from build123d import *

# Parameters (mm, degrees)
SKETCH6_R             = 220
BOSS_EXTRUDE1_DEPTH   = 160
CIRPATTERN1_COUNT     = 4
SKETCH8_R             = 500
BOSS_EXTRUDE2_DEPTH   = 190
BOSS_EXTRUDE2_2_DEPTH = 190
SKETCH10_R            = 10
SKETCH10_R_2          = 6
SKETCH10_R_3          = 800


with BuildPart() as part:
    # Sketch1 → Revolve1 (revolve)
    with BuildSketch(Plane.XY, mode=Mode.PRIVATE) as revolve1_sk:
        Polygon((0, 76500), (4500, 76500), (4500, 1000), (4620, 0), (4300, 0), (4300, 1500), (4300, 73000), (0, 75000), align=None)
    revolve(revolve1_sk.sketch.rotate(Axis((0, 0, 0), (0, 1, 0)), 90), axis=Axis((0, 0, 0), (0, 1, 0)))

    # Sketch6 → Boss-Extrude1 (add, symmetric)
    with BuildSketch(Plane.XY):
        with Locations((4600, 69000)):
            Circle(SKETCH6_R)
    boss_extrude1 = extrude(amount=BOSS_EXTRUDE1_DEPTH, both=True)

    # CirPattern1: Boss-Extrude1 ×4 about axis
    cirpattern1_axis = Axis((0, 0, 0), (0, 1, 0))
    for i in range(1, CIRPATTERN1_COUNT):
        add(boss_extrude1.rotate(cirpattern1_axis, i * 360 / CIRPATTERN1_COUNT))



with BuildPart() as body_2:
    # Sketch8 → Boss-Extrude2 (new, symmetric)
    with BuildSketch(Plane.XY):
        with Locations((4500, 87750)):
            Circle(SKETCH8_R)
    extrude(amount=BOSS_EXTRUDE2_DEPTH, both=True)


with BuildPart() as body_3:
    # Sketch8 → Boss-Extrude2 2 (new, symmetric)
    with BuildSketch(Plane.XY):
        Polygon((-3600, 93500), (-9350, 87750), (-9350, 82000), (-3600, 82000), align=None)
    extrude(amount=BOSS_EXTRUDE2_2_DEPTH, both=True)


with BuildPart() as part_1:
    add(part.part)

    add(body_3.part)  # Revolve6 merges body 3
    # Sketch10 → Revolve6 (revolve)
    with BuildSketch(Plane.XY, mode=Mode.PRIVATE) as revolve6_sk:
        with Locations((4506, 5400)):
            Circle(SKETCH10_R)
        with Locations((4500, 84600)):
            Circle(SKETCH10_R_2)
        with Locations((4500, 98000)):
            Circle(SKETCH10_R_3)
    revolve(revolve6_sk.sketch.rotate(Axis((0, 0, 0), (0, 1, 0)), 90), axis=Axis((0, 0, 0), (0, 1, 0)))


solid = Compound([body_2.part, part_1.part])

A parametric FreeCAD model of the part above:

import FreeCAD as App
import Part
import Sketcher

doc = App.newDocument("Part")
body = doc.addObject("PartDesign::Body", "Body")

# Sketch on XY plane
sketch1 = doc.addObject("Sketcher::SketchObject", "Sketch")
body.addObject(sketch1)
sketch1.AttachmentSupport = (doc.XY_Plane, [""])
sketch1.MapMode = "FlatFace"
sketch1.addGeometry([
    Part.LineSegment(App.Vector(4500, 76500, 0), App.Vector(0, 76500, 0)),  # 0
    Part.LineSegment(App.Vector(0, 76500, 0), App.Vector(0, 75000, 0)),  # 1
    Part.LineSegment(App.Vector(0, 75000, 0), App.Vector(4300, 73000, 0)),  # 2
    Part.LineSegment(App.Vector(4300, 73000, 0), App.Vector(4300, 0, 0)),  # 3
    Part.LineSegment(App.Vector(4300, 0, 0), App.Vector(4620, 0, 0)),  # 4
    Part.LineSegment(App.Vector(4620, 0, 0), App.Vector(4500, 1000, 0)),  # 5
    Part.LineSegment(App.Vector(4500, 1000, 0), App.Vector(4500, 76500, 0)),  # 6
], False)
sketch1.addConstraint([
    Sketcher.Constraint("Coincident", 0, 2, 1, 1),
    Sketcher.Constraint("Coincident", 1, 2, 2, 1),
    Sketcher.Constraint("Coincident", 2, 2, 3, 1),
    Sketcher.Constraint("Coincident", 3, 2, 4, 1),
    Sketcher.Constraint("Coincident", 4, 2, 5, 1),
    Sketcher.Constraint("Coincident", 5, 2, 6, 1),
    Sketcher.Constraint("Coincident", 6, 2, 0, 1),
    Sketcher.Constraint("Horizontal", 0),
    Sketcher.Constraint("Vertical", 1),
    Sketcher.Constraint("Vertical", 3),
    Sketcher.Constraint("Horizontal", 4),
    Sketcher.Constraint("Vertical", 6),
    Sketcher.Constraint("PointOnObject", 0, 2, -2),
    Sketcher.Constraint("PointOnObject", 3, 2, -1),
    Sketcher.Constraint("DistanceX", 0, 2, 0, 1, 4500.0),
    Sketcher.Constraint("DistanceX", 4, 1, 4, 2, 320.0),
    Sketcher.Constraint("DistanceY", 1, 2, 1, 1, 1500.0),
    Sketcher.Constraint("DistanceY", 3, 2, 3, 1, 73000.0),
    Sketcher.Constraint("DistanceY", 6, 1, 6, 2, 75500.0),
    Sketcher.Constraint("DistanceY", -1, 1, 0, 2, 76500.0),
    Sketcher.Constraint("DistanceX", -1, 1, 2, 2, 4300.0),
])
revolution = doc.addObject("PartDesign::Revolution", "Revolution")
body.addObject(revolution)
revolution.Profile = sketch1
revolution.ReferenceAxis = (sketch1, ["V_Axis"])
revolution.Angle = 360

# Sketch on XY plane
sketch2 = doc.addObject("Sketcher::SketchObject", "Sketch001")
body.addObject(sketch2)
sketch2.AttachmentSupport = (doc.XY_Plane, [""])
sketch2.MapMode = "FlatFace"
sketch2.addGeometry(Part.Circle(App.Vector(4600, 69000, 0), App.Vector(0, 0, 1), 220), False)
sketch2.addConstraint([
    Sketcher.Constraint("Diameter", 0, 440.0),
    Sketcher.Constraint("DistanceX", -1, 1, 0, 3, 4600.0),
    Sketcher.Constraint("DistanceY", -1, 1, 0, 3, 69000.0),
])
pad1 = doc.addObject("PartDesign::Pad", "Pad")
body.addObject(pad1)
pad1.Profile = sketch2
pad1.Length = 320
pad1.Midplane = True
doc.recompute()

polarpattern = doc.addObject("PartDesign::PolarPattern", "PolarPattern")
body.addObject(polarpattern)
polarpattern.Originals = [pad1]
polarpattern.Axis = (doc.Y_Axis, [""])
polarpattern.Angle = 360
polarpattern.Occurrences = 4
body.Tip = polarpattern
body2 = doc.addObject("PartDesign::Body", "Body001")

# Sketch on XY plane
sketch3 = doc.addObject("Sketcher::SketchObject", "Sketch002")
body2.addObject(sketch3)
sketch3.AttachmentSupport = (doc.getObject("XY_Plane001"), [""])
sketch3.MapMode = "FlatFace"
sketch3.addGeometry(Part.Circle(App.Vector(4500, 87750, 0), App.Vector(0, 0, 1), 500), False)
sketch3.addConstraint([
    Sketcher.Constraint("Diameter", 0, 1000.0),
    Sketcher.Constraint("DistanceX", -1, 1, 0, 3, 4500.0),
    Sketcher.Constraint("DistanceY", -1, 1, 0, 3, 87750.0),
])
pad2 = doc.addObject("PartDesign::Pad", "Pad001")
body2.addObject(pad2)
pad2.Profile = sketch3
pad2.Length = 380
pad2.Midplane = True
body3 = doc.addObject("PartDesign::Body", "Body002")

# Sketch on XY plane
sketch4 = doc.addObject("Sketcher::SketchObject", "Sketch003")
body3.addObject(sketch4)
sketch4.AttachmentSupport = (doc.getObject("XY_Plane002"), [""])
sketch4.MapMode = "FlatFace"
sketch4.addGeometry([
    Part.LineSegment(App.Vector(-3600, 93500, 0), App.Vector(-9350, 87750, 0)),
    Part.LineSegment(App.Vector(-9350, 87750, 0), App.Vector(-9350, 82000, 0)),
    Part.LineSegment(App.Vector(-9350, 82000, 0), App.Vector(-3600, 82000, 0)),
    Part.LineSegment(App.Vector(-3600, 82000, 0), App.Vector(-3600, 93500, 0)),
], False)
sketch4.addConstraint([
    Sketcher.Constraint("Coincident", 0, 2, 1, 1),
    Sketcher.Constraint("Coincident", 1, 2, 2, 1),
    Sketcher.Constraint("Coincident", 2, 2, 3, 1),
    Sketcher.Constraint("Coincident", 3, 2, 0, 1),
    Sketcher.Constraint("Vertical", 1),
    Sketcher.Constraint("Horizontal", 2),
    Sketcher.Constraint("Vertical", 3),
    Sketcher.Constraint("Equal", 2, 1),
    Sketcher.Constraint("DistanceX", 2, 1, 2, 2, 5750.0),
    Sketcher.Constraint("DistanceY", 3, 1, 3, 2, 11500.0),
    Sketcher.Constraint("DistanceX", 0, 2, -1, 1, 9350.0),
    Sketcher.Constraint("DistanceY", -1, 1, 0, 2, 87750.0),
])
pad3 = doc.addObject("PartDesign::Pad", "Pad002")
body3.addObject(pad3)
pad3.Profile = sketch4
pad3.Length = 380
pad3.Midplane = True
body.AllowCompound = True
doc.recompute()

boolean = doc.addObject("PartDesign::Boolean", "Boolean")
body.addObject(boolean)
boolean.Type = "Fuse"
boolean.addObjects([body3])

# Sketch on XY plane
sketch5 = doc.addObject("Sketcher::SketchObject", "Sketch004")
body.addObject(sketch5)
sketch5.AttachmentSupport = (doc.XY_Plane, [""])
sketch5.MapMode = "FlatFace"
sketch5.addGeometry([
    Part.Circle(App.Vector(4506, 5400, 0), App.Vector(0, 0, 1), 10),
    Part.Circle(App.Vector(4500, 84600, 0), App.Vector(0, 0, 1), 6),
    Part.Circle(App.Vector(4500, 98000, 0), App.Vector(0, 0, 1), 800),
], False)
sketch5.addConstraint([
    Sketcher.Constraint("Vertical", 1, 3, 2, 3),
    Sketcher.Constraint("Diameter", 0, 20.0),
    Sketcher.Constraint("Diameter", 1, 12.0),
    Sketcher.Constraint("Diameter", 2, 1600.0),
    Sketcher.Constraint("DistanceX", -1, 1, 0, 3, 4506.0),
    Sketcher.Constraint("DistanceY", -1, 1, 0, 3, 5400.0),
    Sketcher.Constraint("DistanceX", -1, 1, 1, 3, 4500.0),
    Sketcher.Constraint("DistanceY", -1, 1, 1, 3, 84600.0),
    Sketcher.Constraint("DistanceY", -1, 1, 2, 3, 98000.0),
])
revolution2 = doc.addObject("PartDesign::Revolution", "Revolution001")
body.addObject(revolution2)
revolution2.Profile = sketch5
revolution2.ReferenceAxis = (sketch5, ["V_Axis"])
revolution2.Angle = 360

doc.recompute()
